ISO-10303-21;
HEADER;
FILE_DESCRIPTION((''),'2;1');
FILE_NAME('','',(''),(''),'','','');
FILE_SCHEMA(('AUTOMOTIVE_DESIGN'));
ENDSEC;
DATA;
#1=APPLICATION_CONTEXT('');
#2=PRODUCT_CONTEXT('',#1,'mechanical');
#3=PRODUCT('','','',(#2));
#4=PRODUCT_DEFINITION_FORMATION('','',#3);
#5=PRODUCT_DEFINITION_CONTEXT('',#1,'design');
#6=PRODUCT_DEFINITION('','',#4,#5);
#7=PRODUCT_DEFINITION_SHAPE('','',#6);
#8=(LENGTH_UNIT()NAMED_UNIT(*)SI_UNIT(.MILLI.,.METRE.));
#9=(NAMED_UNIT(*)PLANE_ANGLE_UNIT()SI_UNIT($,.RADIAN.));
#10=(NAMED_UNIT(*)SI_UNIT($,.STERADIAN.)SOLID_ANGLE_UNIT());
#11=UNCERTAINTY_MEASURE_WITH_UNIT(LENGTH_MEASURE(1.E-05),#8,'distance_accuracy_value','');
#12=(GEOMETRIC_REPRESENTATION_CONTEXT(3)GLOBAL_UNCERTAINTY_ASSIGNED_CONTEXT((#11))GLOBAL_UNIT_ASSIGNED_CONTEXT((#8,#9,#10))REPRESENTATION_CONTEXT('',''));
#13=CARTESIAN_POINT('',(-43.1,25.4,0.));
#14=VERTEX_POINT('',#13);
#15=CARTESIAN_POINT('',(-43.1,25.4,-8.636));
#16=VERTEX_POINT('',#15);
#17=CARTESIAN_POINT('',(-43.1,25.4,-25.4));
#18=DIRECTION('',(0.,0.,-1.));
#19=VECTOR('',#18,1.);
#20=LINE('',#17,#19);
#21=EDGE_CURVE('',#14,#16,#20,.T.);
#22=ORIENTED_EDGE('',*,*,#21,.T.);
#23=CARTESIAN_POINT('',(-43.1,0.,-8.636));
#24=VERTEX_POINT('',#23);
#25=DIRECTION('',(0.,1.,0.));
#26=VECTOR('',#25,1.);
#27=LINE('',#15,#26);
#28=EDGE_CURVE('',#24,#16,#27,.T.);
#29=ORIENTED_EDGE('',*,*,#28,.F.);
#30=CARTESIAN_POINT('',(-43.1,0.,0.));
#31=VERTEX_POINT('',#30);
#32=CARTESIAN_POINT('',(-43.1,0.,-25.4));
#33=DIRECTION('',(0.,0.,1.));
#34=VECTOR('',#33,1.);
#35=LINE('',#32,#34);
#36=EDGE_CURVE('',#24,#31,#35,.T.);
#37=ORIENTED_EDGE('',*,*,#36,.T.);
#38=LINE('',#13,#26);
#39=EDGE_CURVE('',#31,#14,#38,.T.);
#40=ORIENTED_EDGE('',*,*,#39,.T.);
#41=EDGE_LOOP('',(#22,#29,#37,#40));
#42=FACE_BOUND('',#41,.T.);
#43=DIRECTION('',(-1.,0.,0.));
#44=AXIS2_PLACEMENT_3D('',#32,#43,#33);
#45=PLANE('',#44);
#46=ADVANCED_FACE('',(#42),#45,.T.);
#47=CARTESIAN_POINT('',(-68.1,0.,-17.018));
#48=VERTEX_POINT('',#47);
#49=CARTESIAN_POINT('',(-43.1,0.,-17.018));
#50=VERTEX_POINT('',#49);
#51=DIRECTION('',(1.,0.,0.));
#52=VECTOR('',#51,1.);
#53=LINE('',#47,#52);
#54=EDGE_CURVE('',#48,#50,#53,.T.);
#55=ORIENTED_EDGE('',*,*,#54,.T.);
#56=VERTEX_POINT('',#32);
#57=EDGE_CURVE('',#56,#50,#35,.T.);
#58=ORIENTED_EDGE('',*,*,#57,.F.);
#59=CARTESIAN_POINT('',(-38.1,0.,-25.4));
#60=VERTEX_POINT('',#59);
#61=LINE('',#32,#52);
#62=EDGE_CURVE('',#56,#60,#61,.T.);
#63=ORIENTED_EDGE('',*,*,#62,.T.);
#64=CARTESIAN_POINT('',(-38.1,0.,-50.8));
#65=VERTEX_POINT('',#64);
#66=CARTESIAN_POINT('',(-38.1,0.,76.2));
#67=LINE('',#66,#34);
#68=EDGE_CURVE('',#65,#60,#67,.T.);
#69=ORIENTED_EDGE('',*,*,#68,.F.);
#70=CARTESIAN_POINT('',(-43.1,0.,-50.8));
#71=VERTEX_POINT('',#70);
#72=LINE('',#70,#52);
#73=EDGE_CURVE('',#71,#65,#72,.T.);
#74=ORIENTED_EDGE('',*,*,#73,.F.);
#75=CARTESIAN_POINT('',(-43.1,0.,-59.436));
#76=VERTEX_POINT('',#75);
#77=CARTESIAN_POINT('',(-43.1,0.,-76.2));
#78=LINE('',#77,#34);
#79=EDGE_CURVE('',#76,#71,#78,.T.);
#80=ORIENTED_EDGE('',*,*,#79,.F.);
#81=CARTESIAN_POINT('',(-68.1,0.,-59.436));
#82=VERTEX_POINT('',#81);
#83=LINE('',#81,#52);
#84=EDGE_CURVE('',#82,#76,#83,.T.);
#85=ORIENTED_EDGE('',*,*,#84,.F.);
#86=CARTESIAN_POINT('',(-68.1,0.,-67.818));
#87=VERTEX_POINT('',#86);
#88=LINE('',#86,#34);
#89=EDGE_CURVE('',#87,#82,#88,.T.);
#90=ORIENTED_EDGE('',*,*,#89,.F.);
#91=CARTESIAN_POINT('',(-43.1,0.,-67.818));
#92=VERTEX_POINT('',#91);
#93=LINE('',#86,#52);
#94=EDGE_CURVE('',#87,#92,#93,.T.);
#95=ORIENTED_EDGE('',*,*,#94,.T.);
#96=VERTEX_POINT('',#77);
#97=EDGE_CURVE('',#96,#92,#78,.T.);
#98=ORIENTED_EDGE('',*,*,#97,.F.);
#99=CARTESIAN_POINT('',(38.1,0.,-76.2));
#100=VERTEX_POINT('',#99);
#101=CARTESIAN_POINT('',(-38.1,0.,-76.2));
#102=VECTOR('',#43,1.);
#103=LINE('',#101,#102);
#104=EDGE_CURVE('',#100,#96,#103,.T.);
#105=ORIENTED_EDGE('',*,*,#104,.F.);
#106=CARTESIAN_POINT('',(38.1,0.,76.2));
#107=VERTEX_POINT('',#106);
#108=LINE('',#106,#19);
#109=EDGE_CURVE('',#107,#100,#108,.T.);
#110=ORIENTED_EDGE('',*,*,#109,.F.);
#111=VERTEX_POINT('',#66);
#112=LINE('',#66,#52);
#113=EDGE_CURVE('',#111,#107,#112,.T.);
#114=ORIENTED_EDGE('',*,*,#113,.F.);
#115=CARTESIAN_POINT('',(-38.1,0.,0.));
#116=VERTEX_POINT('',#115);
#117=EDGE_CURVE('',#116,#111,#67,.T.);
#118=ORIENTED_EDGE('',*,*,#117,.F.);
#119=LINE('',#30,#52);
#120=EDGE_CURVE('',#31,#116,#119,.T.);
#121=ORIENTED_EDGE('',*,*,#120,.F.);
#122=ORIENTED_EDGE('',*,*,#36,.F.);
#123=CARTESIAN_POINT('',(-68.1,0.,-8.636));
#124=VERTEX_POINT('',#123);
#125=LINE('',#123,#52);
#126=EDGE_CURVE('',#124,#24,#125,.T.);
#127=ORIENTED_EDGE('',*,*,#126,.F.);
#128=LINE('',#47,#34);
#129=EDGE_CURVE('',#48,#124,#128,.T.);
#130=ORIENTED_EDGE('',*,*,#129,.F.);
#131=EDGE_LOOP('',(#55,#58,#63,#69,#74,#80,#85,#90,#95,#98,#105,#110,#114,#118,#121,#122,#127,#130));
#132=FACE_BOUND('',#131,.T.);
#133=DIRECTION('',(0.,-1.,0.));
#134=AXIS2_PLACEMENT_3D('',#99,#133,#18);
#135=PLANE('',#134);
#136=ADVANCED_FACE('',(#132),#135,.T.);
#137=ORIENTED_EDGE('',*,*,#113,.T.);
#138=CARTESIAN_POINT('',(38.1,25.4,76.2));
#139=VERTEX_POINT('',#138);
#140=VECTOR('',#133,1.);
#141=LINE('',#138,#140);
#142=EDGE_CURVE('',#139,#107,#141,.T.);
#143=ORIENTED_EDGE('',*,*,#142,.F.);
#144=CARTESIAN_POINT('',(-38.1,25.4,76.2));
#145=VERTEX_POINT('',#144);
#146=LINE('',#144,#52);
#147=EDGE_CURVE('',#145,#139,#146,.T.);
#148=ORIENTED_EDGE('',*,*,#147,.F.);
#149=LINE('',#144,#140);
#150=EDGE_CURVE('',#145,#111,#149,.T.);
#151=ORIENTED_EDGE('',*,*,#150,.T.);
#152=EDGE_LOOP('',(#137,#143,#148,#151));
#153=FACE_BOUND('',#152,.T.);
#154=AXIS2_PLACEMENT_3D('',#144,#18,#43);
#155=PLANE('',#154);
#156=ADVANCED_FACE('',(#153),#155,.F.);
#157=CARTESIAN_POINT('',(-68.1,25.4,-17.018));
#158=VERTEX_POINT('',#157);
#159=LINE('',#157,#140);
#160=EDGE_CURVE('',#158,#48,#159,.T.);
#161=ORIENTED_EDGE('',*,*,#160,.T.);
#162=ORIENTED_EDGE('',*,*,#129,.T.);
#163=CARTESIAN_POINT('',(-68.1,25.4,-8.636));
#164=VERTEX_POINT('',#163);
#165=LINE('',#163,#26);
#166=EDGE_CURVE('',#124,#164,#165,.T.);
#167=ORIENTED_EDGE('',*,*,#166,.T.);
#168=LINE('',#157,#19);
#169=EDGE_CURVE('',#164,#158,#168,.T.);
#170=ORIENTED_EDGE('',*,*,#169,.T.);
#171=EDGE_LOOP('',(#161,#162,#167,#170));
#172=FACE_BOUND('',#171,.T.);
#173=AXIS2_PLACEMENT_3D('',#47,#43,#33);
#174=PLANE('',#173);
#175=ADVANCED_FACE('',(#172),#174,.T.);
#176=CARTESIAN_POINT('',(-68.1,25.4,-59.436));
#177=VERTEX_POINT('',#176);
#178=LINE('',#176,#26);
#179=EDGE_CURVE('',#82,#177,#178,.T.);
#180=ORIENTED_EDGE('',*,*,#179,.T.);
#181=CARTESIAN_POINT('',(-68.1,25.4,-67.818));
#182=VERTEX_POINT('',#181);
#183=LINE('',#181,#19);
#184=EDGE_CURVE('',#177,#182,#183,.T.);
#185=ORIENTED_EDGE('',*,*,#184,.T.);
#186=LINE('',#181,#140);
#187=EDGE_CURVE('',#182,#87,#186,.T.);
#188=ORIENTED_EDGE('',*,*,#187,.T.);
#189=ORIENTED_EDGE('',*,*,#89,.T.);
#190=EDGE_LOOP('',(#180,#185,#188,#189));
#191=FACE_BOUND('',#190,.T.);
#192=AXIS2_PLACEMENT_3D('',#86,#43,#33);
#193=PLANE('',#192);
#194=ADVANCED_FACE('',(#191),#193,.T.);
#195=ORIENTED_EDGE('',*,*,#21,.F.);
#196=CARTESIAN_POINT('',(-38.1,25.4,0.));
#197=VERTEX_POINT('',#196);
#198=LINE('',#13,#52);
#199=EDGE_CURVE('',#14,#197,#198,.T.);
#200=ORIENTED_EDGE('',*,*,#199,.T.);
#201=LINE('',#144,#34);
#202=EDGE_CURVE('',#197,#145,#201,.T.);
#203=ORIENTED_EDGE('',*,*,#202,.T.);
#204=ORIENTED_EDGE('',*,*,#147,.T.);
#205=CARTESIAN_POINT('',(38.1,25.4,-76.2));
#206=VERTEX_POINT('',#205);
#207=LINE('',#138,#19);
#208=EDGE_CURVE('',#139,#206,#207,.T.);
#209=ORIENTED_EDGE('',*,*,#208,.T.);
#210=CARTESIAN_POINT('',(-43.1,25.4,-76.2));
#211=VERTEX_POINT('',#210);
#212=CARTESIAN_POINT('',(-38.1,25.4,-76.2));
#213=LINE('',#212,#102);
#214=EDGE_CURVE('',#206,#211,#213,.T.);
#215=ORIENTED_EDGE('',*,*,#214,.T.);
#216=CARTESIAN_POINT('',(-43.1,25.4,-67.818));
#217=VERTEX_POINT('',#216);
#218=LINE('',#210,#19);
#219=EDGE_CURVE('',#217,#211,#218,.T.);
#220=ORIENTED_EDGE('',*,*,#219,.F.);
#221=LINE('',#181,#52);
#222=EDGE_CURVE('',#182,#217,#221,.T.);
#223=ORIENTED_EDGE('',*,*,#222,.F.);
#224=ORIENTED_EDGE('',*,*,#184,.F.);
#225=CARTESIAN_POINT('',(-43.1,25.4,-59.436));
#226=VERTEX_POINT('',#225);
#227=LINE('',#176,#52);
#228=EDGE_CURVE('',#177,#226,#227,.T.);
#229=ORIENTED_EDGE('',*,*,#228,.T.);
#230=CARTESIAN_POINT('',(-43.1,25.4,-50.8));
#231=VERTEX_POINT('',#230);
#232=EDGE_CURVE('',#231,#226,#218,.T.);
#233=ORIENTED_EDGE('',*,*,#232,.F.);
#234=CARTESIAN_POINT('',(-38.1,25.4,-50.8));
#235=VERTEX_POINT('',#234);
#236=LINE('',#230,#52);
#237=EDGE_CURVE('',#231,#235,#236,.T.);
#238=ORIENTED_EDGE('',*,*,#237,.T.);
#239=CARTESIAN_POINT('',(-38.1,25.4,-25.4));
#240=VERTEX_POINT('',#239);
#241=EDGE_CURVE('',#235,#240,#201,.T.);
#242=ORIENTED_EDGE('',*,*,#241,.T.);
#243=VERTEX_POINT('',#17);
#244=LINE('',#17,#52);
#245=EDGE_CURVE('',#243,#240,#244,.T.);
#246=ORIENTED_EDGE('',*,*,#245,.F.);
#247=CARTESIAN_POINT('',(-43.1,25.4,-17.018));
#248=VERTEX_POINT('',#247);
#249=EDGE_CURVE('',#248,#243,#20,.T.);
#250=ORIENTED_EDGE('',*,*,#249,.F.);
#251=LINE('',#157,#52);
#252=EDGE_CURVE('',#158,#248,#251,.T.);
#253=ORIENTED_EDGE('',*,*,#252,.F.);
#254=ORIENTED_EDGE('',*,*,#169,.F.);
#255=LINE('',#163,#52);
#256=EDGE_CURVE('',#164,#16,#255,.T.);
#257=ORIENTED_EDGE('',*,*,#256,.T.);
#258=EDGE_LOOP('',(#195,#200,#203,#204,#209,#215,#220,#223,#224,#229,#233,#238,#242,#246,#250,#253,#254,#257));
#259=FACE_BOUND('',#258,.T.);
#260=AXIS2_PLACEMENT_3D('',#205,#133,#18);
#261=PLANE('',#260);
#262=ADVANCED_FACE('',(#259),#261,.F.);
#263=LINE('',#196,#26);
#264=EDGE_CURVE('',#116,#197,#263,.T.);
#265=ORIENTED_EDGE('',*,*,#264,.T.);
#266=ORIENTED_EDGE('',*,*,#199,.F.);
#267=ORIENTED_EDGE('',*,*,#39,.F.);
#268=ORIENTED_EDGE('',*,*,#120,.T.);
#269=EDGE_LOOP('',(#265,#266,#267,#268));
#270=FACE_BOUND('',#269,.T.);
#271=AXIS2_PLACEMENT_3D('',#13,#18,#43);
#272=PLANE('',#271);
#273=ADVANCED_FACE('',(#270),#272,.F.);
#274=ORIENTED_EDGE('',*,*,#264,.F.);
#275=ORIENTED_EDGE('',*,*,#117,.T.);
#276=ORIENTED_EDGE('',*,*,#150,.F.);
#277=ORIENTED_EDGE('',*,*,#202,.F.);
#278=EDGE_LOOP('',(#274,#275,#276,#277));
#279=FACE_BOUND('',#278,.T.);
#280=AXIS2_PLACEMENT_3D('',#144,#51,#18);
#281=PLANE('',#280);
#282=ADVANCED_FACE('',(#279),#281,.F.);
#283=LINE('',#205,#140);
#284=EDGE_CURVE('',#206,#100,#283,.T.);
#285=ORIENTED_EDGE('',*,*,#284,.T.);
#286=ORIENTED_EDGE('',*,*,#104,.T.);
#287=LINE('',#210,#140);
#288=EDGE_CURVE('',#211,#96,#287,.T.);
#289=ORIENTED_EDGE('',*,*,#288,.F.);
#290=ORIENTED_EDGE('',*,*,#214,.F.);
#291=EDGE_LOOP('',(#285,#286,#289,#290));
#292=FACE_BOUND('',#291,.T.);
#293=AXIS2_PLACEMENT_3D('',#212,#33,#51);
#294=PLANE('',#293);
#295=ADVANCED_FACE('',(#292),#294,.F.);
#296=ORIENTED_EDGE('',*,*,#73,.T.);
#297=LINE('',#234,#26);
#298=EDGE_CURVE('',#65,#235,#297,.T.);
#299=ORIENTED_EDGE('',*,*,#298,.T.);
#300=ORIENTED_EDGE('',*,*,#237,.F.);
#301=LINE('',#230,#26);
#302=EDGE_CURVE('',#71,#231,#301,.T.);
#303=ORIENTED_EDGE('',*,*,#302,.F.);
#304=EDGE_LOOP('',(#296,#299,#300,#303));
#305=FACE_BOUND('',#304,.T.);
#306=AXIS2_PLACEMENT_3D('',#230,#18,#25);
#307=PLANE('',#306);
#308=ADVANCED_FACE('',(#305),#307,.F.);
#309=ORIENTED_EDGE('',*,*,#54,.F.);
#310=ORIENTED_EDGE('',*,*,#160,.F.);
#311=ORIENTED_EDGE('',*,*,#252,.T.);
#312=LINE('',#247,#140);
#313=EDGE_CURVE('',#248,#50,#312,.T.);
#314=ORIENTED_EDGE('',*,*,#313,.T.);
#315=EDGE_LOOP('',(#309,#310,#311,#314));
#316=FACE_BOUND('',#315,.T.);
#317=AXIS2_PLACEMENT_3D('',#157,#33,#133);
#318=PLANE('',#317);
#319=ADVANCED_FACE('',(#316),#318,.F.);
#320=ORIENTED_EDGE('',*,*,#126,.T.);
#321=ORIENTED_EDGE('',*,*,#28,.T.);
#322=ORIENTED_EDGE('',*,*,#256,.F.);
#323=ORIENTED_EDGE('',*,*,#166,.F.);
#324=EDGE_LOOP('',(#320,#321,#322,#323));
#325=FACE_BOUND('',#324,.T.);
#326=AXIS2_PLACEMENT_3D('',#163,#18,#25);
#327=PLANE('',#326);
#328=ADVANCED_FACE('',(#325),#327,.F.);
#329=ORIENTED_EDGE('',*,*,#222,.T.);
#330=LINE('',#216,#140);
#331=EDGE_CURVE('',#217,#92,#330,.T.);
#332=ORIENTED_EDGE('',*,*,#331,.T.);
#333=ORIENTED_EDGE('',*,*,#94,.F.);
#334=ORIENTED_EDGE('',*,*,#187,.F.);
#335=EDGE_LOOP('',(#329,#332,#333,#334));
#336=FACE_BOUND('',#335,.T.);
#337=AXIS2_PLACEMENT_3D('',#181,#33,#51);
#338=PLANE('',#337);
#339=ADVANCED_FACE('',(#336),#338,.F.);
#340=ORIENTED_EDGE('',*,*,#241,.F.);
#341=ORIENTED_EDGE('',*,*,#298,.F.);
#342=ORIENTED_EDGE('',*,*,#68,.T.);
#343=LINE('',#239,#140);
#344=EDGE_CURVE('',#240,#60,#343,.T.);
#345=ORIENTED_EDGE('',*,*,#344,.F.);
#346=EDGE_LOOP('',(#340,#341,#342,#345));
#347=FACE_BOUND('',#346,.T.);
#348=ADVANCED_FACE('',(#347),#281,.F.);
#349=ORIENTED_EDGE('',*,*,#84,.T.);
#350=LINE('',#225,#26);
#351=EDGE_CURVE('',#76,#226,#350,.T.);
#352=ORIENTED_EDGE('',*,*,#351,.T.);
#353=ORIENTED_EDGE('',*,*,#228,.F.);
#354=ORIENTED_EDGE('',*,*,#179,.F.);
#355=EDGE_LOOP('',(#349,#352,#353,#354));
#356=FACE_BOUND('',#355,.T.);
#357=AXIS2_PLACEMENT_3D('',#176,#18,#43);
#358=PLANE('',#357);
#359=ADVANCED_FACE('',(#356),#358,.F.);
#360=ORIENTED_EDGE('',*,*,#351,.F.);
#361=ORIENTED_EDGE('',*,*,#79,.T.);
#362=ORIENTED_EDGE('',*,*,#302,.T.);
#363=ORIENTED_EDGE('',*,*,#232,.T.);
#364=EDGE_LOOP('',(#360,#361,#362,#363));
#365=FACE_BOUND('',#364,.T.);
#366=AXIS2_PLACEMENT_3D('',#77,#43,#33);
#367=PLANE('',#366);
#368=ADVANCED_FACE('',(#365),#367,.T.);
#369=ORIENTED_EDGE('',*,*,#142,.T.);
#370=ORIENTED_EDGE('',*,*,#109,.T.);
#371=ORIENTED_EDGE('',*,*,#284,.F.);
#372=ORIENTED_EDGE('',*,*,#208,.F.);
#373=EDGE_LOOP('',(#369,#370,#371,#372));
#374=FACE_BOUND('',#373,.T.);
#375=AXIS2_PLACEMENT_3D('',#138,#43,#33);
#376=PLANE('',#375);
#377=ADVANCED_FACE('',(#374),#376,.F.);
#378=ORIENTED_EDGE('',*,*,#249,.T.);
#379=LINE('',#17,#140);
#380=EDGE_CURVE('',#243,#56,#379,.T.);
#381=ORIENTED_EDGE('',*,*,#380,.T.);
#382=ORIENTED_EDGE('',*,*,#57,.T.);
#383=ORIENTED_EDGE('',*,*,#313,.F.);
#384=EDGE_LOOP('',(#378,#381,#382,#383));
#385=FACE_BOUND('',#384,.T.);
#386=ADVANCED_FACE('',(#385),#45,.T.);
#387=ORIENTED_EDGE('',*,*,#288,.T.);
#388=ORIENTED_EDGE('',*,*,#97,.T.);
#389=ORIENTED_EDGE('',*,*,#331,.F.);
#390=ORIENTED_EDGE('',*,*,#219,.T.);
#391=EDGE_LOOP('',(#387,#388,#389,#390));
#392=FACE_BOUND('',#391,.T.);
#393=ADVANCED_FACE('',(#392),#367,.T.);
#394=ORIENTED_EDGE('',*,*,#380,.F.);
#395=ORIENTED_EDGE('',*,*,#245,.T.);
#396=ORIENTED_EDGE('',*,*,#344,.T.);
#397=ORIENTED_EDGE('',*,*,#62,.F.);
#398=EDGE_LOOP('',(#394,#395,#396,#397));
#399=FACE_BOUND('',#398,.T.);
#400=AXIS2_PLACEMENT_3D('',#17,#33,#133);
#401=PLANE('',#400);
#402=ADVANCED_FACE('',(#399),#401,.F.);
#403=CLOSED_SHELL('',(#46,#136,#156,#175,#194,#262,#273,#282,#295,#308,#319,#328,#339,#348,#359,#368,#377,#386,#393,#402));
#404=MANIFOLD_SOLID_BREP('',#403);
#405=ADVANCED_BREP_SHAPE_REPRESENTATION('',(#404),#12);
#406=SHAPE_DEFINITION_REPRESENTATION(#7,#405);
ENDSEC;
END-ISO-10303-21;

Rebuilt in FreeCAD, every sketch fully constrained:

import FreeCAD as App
import Part
import Sketcher
from FreeCAD import Vector
Q = App.Units.Quantity


def add_polygon(sketch, points):
    """Adds a closed chain of lines whose ends are joined by coincident constraints."""
    first, n = sketch.GeometryCount, len(points)
    for a, b in zip(points, points[1:] + points[:1]):
        sketch.addGeometry(Part.LineSegment(App.Vector(*a, 0), App.Vector(*b, 0)), False)
    for i in range(n):
        sketch.addConstraint(Sketcher.Constraint("Coincident", first + i, 2, first + (i + 1) % n, 1))

doc = App.newDocument("Part")
params = doc.addObject("Spreadsheet::Sheet", "Params")
for row, (alias, value) in enumerate([
    ("sketch1_width", "3 in"),
    ("sketch1_height", "6 in"),
    ("pad1_length", "1 in"),
    ("sketch2_width", "1 in"),
    ("pad2_length", "5 mm"),
    ("sketch3_width", "1 in"),
    ("sketch3_height", "0.33 in"),
    ("pad3_length", "25 mm"),
    ("sketch4_width", "1 in"),
    ("pad4_length", "5 mm"),
    ("sketch5_width", "1 in"),
    ("sketch5_height", "0.33 in"),
    ("pad5_length", "25 mm"),
], start=1):
    params.set(f"A{row}", alias)
    params.set(f"B{row}", "=" + value)
    params.setAlias(f"B{row}", alias)

body = doc.addObject("PartDesign::Body", "Body")

# Sketch on XZ plane
sketch1 = body.newObject("Sketcher::SketchObject", "Sketch")
sketch1.AttachmentSupport = (doc.getObject("XZ_Plane"), [""])
sketch1.MapMode = "FlatFace"
add_polygon(sketch1, [(-38, -76), (-38, 76), (38, 76), (38, -76)])  # lines 0-3
sketch1.addConstraint([
    Sketcher.Constraint("Vertical", 0),
    Sketcher.Constraint("Horizontal", 1),
    Sketcher.Constraint("Vertical", 2),
    Sketcher.Constraint("Horizontal", 3),
    Sketcher.Constraint("Symmetric", 0, 2, 2, 2, -1, 1),
    Sketcher.Constraint("DistanceX", 1, 1, 1, 2, Q("3 in")),
    Sketcher.Constraint("DistanceY", 0, 1, 0, 2, Q("6 in")),
])
sketch1.setExpression("Constraints[9]", "Params.sketch1_width")
sketch1.setExpression("Constraints[10]", "Params.sketch1_height")
pad1 = body.newObject("PartDesign::Pad", "Pad")
pad1.Profile = sketch1
pad1.setExpression("Length", "Params.pad1_length")
pad1.Reversed = True

# Sketch on YZ plane
sketch2 = body.newObject("Sketcher::SketchObject", "Sketch001")
sketch2.AttachmentSupport = (doc.getObject("YZ_Plane"), [""])
sketch2.MapMode = "FlatFace"
sketch2.AttachmentOffset = App.Placement(Vector(0, 0, -1.5 * 25.4), App.Rotation())
add_polygon(sketch2, [(25, -76), (0, -76), (0, -51), (25, -51)])  # lines 0-3
sketch2.addConstraint([
    Sketcher.Constraint("Horizontal", 0),
    Sketcher.Constraint("Vertical", 1),
    Sketcher.Constraint("Horizontal", 2),
    Sketcher.Constraint("Vertical", 3),
    Sketcher.Constraint("PointOnObject", 0, 2, -2),
    Sketcher.Constraint("Equal", 2, 1),
    Sketcher.Constraint("DistanceX", 0, 2, 0, 1, Q("1 in")),
    Sketcher.Constraint("DistanceY", 0, 2, -1, 1, Q("3 in")),
])
sketch2.setExpression("Constraints[10]", "Params.sketch2_width")
pad2 = body.newObject("PartDesign::Pad", "Pad001")
pad2.Profile = sketch2
pad2.setExpression("Length", "Params.pad2_length")
pad2.Reversed = True

# Sketch on YZ plane
sketch3 = body.newObject("Sketcher::SketchObject", "Sketch002")
sketch3.AttachmentSupport = (doc.getObject("YZ_Plane"), [""])
sketch3.MapMode = "FlatFace"
sketch3.AttachmentOffset = App.Placement(Vector(0, 0, -43.1), App.Rotation())
add_polygon(sketch3, [(25, -68), (0, -68), (0, -59), (25, -59)])  # lines 0-3
sketch3.addConstraint([
    Sketcher.Constraint("Horizontal", 0),
    Sketcher.Constraint("Vertical", 1),
    Sketcher.Constraint("Horizontal", 2),
    Sketcher.Constraint("Vertical", 3),
    Sketcher.Constraint("PointOnObject", 0, 2, -2),
    Sketcher.Constraint("DistanceX", 0, 2, 0, 1, Q("1 in")),
    Sketcher.Constraint("DistanceY", 1, 1, 1, 2, Q("0.33 in")),
    Sketcher.Constraint("DistanceY", 0, 2, -1, 1, Q("2.67 in")),
])
sketch3.setExpression("Constraints[9]", "Params.sketch3_width")
sketch3.setExpression("Constraints[10]", "Params.sketch3_height")
pad3 = body.newObject("PartDesign::Pad", "Pad002")
pad3.Profile = sketch3
pad3.setExpression("Length", "Params.pad3_length")
pad3.Reversed = True

# Sketch on YZ plane
sketch4 = body.newObject("Sketcher::SketchObject", "Sketch003")
sketch4.AttachmentSupport = (doc.getObject("YZ_Plane"), [""])
sketch4.MapMode = "FlatFace"
sketch4.AttachmentOffset = App.Placement(Vector(0, 0, -1.5 * 25.4), App.Rotation())
add_polygon(sketch4, [(25, -25), (0, -25), (0, 0), (25, 0)])  # lines 0-3
sketch4.addConstraint([
    Sketcher.Constraint("Horizontal", 0),
    Sketcher.Constraint("Vertical", 1),
    Sketcher.Constraint("Horizontal", 2),
    Sketcher.Constraint("Vertical", 3),
    Sketcher.Constraint("Coincident", 1, 2, -1, 1),
    Sketcher.Constraint("Equal", 2, 1),
    Sketcher.Constraint("DistanceX", 0, 2, 0, 1, Q("1 in")),
])
sketch4.setExpression("Constraints[10]", "Params.sketch4_width")
pad4 = body.newObject("PartDesign::Pad", "Pad003")
pad4.Profile = sketch4
pad4.setExpression("Length", "Params.pad4_length")
pad4.Reversed = True

# Sketch on YZ plane
sketch5 = body.newObject("Sketcher::SketchObject", "Sketch004")
sketch5.AttachmentSupport = (doc.getObject("YZ_Plane"), [""])
sketch5.MapMode = "FlatFace"
sketch5.AttachmentOffset = App.Placement(Vector(0, 0, -43.1), App.Rotation())
add_polygon(sketch5, [(25, -17), (0, -17), (0, -9), (25, -9)])  # lines 0-3
sketch5.addConstraint([
    Sketcher.Constraint("Horizontal", 0),
    Sketcher.Constraint("Vertical", 1),
    Sketcher.Constraint("Horizontal", 2),
    Sketcher.Constraint("Vertical", 3),
    Sketcher.Constraint("PointOnObject", 0, 2, -2),
    Sketcher.Constraint("DistanceX", 0, 2, 0, 1, Q("1 in")),
    Sketcher.Constraint("DistanceY", 1, 1, 1, 2, Q("0.33 in")),
    Sketcher.Constraint("DistanceY", 0, 2, -1, 1, Q("0.67 in")),
])
sketch5.setExpression("Constraints[9]", "Params.sketch5_width")
sketch5.setExpression("Constraints[10]", "Params.sketch5_height")
pad5 = body.newObject("PartDesign::Pad", "Pad004")
pad5.Profile = sketch5
pad5.setExpression("Length", "Params.pad5_length")
pad5.Reversed = True

doc.recompute()
